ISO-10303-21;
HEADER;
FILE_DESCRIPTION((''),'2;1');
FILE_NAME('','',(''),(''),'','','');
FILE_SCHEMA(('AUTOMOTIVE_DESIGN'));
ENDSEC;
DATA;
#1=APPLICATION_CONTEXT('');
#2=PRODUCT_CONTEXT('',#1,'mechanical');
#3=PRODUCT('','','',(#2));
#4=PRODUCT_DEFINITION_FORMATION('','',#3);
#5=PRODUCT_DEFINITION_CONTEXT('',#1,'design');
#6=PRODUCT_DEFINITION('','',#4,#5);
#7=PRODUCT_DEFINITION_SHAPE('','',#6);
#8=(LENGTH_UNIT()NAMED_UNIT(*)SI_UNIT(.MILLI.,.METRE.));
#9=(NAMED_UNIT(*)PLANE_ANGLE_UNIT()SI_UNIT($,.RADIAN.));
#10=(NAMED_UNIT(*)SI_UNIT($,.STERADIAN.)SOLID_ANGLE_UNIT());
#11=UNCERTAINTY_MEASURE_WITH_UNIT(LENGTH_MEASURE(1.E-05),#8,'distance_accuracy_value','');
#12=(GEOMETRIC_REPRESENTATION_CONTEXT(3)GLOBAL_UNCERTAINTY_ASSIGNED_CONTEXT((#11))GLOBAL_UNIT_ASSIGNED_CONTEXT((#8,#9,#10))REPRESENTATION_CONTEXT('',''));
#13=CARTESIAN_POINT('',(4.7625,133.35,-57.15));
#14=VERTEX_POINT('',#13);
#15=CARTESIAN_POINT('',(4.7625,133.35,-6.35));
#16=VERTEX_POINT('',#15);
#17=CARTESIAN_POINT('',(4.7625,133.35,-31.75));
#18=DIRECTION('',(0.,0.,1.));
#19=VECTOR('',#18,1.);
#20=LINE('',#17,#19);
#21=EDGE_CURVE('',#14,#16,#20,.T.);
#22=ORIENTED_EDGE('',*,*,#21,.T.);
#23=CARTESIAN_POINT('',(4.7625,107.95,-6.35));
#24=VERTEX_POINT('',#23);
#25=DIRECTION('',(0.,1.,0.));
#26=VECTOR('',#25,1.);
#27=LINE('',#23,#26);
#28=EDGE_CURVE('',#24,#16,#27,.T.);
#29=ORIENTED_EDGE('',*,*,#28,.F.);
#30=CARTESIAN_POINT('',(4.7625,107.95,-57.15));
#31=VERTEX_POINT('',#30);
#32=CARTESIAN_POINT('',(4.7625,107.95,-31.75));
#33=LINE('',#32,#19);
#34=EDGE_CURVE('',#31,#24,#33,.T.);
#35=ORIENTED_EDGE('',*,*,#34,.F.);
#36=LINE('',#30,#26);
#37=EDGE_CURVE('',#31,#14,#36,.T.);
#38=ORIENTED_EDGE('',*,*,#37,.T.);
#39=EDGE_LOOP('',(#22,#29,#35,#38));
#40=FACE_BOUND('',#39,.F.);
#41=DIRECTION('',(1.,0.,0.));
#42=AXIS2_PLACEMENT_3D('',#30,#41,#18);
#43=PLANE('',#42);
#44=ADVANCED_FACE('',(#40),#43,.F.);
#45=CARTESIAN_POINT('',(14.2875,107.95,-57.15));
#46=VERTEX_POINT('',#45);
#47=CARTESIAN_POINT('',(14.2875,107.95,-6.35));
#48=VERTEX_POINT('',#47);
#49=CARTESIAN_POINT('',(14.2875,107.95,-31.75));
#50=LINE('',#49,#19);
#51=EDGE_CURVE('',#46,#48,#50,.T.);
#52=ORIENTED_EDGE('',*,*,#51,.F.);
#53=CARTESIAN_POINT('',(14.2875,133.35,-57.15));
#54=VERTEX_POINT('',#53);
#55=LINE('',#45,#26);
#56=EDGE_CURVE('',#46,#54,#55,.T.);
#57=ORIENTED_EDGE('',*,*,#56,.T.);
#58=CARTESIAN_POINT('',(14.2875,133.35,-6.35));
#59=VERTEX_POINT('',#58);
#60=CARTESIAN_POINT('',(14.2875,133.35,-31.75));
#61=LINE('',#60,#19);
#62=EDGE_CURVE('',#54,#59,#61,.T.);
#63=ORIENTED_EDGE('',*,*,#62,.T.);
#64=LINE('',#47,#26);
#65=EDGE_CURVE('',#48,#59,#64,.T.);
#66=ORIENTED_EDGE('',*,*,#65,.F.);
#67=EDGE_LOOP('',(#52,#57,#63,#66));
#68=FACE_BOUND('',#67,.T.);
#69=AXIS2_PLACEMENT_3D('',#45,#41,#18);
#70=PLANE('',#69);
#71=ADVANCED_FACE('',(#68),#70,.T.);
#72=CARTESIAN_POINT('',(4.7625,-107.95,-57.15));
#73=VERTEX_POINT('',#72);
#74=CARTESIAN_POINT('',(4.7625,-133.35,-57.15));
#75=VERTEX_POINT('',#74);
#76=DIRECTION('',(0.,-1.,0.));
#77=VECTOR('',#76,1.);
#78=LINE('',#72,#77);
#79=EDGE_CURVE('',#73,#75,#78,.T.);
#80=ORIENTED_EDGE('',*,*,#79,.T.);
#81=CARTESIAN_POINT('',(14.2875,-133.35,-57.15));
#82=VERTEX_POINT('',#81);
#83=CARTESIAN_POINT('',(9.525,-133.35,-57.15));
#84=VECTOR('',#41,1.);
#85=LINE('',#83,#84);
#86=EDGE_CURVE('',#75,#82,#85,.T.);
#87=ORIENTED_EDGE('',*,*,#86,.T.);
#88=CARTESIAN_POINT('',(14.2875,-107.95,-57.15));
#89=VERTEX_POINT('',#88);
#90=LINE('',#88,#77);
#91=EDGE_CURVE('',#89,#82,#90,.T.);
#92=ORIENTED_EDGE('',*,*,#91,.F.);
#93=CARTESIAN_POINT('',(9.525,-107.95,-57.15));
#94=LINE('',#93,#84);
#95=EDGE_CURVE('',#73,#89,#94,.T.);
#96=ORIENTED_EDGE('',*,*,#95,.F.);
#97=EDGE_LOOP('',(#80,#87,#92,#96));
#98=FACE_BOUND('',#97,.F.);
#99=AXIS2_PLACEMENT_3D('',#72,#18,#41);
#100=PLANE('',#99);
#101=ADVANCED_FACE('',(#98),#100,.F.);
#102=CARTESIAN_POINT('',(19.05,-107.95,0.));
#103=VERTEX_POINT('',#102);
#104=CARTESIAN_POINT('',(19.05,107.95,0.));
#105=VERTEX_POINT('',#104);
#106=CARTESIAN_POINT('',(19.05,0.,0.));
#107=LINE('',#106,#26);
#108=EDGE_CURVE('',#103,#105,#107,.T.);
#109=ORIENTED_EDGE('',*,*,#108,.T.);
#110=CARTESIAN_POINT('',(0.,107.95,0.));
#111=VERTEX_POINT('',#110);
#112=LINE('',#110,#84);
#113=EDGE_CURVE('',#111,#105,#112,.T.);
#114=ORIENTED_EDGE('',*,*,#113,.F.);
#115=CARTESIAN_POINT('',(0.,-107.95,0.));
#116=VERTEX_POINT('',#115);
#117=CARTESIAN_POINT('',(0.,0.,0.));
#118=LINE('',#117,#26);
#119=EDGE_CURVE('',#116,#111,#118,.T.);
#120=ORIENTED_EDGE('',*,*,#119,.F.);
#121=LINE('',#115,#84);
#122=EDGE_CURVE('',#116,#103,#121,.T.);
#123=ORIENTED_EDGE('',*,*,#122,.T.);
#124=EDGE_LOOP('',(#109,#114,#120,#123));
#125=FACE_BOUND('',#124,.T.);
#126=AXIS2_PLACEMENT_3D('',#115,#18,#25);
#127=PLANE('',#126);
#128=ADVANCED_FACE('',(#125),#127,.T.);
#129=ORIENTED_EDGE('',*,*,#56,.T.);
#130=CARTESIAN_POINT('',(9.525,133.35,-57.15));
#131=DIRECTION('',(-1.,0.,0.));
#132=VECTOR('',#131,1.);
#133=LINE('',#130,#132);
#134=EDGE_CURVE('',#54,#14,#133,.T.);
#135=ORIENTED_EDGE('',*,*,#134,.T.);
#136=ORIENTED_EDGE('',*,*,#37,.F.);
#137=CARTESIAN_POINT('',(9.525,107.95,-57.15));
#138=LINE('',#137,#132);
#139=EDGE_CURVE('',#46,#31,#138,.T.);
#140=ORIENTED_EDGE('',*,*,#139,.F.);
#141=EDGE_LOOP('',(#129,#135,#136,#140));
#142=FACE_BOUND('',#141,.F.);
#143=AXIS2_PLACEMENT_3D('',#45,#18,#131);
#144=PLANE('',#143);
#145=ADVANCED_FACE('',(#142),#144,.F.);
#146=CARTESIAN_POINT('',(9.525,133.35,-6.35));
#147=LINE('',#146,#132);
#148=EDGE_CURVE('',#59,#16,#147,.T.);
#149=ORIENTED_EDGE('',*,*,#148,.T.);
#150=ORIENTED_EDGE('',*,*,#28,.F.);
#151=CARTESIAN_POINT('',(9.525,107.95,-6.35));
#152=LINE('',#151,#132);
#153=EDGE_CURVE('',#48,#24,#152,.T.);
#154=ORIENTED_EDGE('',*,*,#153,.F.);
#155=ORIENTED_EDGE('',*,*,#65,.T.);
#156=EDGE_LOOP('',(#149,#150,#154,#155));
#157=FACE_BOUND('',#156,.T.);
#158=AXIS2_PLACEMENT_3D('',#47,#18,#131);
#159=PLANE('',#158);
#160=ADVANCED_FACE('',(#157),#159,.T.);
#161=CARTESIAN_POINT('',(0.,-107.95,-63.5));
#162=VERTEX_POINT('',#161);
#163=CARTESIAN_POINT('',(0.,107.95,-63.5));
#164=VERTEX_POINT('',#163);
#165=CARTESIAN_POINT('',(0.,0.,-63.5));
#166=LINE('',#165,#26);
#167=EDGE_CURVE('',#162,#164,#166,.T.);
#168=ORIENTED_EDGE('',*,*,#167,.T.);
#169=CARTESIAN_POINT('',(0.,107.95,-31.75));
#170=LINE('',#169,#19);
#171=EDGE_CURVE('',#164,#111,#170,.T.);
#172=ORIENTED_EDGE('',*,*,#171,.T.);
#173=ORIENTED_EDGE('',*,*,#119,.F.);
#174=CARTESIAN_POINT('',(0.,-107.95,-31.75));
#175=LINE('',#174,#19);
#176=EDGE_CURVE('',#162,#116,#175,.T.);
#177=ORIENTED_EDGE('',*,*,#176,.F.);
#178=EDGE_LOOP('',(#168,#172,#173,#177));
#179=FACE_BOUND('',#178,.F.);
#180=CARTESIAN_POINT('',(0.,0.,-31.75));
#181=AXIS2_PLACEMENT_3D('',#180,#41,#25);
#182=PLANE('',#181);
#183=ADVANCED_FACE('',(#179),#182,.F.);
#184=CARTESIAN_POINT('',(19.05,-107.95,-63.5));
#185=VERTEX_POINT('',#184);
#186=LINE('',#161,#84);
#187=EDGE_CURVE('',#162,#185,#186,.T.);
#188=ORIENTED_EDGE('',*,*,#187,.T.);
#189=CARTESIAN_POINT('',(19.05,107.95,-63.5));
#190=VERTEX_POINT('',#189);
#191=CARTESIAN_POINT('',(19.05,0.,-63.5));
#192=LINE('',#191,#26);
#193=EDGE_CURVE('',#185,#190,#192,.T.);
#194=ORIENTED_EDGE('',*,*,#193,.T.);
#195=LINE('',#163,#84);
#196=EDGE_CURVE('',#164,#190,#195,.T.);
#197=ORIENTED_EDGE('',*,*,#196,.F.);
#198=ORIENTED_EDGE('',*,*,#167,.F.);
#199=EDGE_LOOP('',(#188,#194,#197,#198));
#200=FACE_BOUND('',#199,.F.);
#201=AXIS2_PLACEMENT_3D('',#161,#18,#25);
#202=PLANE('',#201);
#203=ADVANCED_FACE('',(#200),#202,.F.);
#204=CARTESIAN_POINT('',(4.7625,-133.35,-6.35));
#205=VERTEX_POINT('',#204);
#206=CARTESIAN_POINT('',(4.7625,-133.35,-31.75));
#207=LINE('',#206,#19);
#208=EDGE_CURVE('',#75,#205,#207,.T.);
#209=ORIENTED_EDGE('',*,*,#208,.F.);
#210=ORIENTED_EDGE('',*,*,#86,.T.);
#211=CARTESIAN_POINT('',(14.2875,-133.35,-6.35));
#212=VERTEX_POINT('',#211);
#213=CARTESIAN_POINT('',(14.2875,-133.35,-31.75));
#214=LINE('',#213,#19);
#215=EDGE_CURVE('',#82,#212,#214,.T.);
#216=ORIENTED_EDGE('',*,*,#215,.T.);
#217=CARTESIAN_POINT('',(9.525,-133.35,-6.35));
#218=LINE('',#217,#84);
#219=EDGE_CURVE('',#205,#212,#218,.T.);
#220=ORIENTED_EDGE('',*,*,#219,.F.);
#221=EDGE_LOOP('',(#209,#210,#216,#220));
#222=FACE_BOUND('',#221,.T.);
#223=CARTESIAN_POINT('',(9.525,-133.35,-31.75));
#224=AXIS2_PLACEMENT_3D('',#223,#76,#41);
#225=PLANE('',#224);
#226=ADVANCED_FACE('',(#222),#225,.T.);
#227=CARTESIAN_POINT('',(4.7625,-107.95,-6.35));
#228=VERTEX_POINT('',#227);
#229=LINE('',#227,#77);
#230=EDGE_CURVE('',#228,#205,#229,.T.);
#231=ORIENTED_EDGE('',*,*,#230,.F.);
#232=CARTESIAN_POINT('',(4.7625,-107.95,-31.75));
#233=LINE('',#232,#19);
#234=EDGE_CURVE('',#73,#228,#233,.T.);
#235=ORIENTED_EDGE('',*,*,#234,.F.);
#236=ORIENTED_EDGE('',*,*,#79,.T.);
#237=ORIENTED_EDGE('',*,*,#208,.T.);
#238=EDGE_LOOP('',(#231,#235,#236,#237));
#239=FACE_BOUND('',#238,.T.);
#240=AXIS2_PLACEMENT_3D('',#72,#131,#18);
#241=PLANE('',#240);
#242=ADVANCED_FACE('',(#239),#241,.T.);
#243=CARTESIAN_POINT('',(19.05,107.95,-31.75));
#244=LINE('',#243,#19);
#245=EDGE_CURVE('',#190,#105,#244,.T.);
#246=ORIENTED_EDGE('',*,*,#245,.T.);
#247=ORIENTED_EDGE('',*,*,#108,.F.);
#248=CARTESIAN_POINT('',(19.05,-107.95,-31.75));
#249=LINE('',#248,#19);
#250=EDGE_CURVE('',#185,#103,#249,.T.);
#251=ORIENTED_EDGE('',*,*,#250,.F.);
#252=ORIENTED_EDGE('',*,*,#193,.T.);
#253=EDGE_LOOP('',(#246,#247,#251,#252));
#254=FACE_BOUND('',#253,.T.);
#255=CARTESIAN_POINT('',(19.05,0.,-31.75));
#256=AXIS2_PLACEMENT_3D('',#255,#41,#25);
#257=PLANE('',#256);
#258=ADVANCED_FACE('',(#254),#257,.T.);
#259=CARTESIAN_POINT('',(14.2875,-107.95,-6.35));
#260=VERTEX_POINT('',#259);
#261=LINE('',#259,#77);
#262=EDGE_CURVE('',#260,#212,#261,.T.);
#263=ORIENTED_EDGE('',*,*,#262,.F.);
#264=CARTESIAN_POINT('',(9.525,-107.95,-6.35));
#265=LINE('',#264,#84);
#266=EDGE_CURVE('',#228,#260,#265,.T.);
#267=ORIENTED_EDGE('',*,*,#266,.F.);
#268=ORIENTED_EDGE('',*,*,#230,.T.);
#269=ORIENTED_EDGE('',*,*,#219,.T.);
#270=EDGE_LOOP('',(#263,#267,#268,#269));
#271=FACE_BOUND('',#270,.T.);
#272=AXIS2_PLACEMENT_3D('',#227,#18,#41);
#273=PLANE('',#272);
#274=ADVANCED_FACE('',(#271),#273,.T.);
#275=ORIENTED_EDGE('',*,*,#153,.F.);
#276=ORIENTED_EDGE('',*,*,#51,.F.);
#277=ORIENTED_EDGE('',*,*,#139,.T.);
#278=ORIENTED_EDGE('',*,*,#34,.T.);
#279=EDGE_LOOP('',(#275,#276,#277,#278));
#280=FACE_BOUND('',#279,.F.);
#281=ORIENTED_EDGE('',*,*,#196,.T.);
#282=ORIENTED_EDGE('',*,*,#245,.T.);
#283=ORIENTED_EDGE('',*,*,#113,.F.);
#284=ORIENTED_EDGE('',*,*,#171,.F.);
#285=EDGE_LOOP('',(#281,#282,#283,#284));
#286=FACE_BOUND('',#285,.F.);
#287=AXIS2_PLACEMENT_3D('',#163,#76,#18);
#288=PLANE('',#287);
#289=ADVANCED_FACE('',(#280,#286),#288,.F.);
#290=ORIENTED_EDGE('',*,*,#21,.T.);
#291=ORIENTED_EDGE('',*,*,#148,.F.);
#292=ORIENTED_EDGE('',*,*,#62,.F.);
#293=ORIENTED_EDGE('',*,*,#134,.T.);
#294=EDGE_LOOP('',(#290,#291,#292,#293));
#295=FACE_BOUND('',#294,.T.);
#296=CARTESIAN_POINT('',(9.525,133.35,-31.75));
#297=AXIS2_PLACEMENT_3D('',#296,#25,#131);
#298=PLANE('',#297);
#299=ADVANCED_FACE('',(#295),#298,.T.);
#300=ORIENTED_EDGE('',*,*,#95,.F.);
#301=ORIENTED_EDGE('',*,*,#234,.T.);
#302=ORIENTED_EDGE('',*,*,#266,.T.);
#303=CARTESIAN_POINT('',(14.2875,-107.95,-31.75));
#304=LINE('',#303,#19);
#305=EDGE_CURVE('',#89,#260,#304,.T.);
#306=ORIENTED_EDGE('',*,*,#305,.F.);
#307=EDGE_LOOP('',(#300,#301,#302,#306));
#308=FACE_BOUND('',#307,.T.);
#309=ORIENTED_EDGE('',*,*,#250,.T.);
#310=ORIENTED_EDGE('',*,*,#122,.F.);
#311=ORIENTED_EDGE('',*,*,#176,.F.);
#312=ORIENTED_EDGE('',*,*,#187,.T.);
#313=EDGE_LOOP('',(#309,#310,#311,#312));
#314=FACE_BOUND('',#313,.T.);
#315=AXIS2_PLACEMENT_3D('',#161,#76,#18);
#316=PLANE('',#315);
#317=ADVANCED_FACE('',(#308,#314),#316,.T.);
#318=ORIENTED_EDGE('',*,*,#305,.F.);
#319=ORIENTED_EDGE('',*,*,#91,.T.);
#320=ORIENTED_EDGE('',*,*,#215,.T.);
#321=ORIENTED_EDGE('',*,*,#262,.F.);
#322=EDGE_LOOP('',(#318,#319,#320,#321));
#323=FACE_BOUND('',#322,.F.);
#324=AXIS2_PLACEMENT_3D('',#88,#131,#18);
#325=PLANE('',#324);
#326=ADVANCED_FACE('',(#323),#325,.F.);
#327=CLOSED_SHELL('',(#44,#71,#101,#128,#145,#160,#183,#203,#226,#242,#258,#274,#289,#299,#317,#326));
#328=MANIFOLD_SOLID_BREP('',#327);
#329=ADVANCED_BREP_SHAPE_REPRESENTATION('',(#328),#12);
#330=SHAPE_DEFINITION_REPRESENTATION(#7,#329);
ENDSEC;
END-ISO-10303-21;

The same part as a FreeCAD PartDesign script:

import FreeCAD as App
import Part
import Sketcher

V = App.Vector
Q = App.Units.Quantity


def add_polygon(sketch, points):
    """Adds a closed chain of lines whose ends are joined by coincident constraints."""
    first, n = sketch.GeometryCount, len(points)
    for a, b in zip(points, points[1:] + points[:1]):
        sketch.addGeometry(Part.LineSegment(App.Vector(*a, 0), App.Vector(*b, 0)), False)
    for i in range(n):
        sketch.addConstraint(Sketcher.Constraint("Coincident", first + i, 2, first + (i + 1) % n, 1))

doc = App.newDocument("Part")
body = doc.addObject("PartDesign::Body", "Body")

# Sketch on YZ plane
sketch1 = body.newObject("Sketcher::SketchObject", "Sketch")
sketch1.AttachmentSupport = (doc.getObject("YZ_Plane"), [""])
sketch1.MapMode = "FlatFace"
add_polygon(sketch1, [(-108, 0), (-108, -64), (108, -64), (108, 0)])  # lines 0-3
sketch1.addConstraint([
    Sketcher.Constraint("Vertical", 0),
    Sketcher.Constraint("Horizontal", 1),
    Sketcher.Constraint("Vertical", 2),
    Sketcher.Constraint("Horizontal", 3),
    Sketcher.Constraint("Symmetric", 2, 2, 3, 2, -1, 1),
    Sketcher.Constraint("DistanceX", 1, 1, 1, 2, Q("8.5 in")),
    Sketcher.Constraint("DistanceY", 0, 2, 0, 1, Q("2.5 in")),
])
pad1 = body.newObject("PartDesign::Pad", "Pad")
pad1.Profile = sketch1
pad1.Length = Q("0.75 in")

# Sketch on XZ plane
sketch2 = body.newObject("Sketcher::SketchObject", "Sketch001")
sketch2.AttachmentSupport = (doc.getObject("XZ_Plane"), [""])
sketch2.MapMode = "FlatFace"
sketch2.AttachmentOffset = App.Placement(V(0, 0, -4.25 * 25.4), App.Rotation())
add_polygon(sketch2, [(14, -6), (14, -57), (5, -57), (5, -6)])  # lines 0-3
sketch2.addConstraint([
    Sketcher.Constraint("Vertical", 0),
    Sketcher.Constraint("Horizontal", 1),
    Sketcher.Constraint("Vertical", 2),
    Sketcher.Constraint("Horizontal", 3),
    Sketcher.Constraint("DistanceY", 0, 2, 0, 1, Q("2 in")),
    Sketcher.Constraint("DistanceX", 1, 2, 1, 1, Q("0.375 in")),
    Sketcher.Constraint("DistanceY", 0, 2, -1, 1, Q("2.25 in")),
    Sketcher.Constraint("DistanceX", -1, 1, 0, 2, Q("0.5625 in")),
])
pad2 = body.newObject("PartDesign::Pad", "Pad001")
pad2.Profile = sketch2
pad2.Length = Q("1 in")
pad2.Reversed = True

# Sketch on XZ plane
sketch3 = body.newObject("Sketcher::SketchObject", "Sketch002")
sketch3.AttachmentSupport = (doc.getObject("XZ_Plane"), [""])
sketch3.MapMode = "FlatFace"
sketch3.AttachmentOffset = App.Placement(V(0, 0, 4.25 * 25.4), App.Rotation())
add_polygon(sketch3, [(5, -6), (5, -57), (14, -57), (14, -6)])  # lines 0-3
sketch3.addConstraint([
    Sketcher.Constraint("Vertical", 0),
    Sketcher.Constraint("Horizontal", 1),
    Sketcher.Constraint("Vertical", 2),
    Sketcher.Constraint("Horizontal", 3),
    Sketcher.Constraint("DistanceY", 0, 2, 0, 1, Q("2 in")),
    Sketcher.Constraint("DistanceX", 1, 1, 1, 2, Q("0.375 in")),
    Sketcher.Constraint("DistanceY", 0, 2, -1, 1, Q("2.25 in")),
    Sketcher.Constraint("DistanceX", -1, 1, 0, 2, Q("0.1875 in")),
])
pad3 = body.newObject("PartDesign::Pad", "Pad002")
pad3.Profile = sketch3
pad3.Length = Q("1 in")

doc.recompute()
